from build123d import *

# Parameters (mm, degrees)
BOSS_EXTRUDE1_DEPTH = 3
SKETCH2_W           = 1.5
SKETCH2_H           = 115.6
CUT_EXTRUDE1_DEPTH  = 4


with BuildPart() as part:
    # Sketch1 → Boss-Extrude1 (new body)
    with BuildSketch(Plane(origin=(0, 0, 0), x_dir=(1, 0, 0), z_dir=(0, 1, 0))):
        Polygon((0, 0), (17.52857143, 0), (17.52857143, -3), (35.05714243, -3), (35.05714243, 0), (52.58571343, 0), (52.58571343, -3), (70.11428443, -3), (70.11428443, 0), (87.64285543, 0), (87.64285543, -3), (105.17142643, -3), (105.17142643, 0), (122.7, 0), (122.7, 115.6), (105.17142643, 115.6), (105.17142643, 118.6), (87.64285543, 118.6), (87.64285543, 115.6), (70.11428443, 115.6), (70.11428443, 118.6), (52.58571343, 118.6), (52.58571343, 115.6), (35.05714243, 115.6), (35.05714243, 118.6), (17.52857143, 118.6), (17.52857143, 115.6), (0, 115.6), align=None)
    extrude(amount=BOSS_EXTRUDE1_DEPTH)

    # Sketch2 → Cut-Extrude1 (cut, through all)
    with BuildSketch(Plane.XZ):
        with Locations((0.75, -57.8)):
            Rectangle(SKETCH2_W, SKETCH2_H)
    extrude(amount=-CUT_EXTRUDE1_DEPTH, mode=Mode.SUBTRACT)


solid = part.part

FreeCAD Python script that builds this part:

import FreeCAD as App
import Part
import Sketcher
from FreeCAD import Vector

doc = App.newDocument("Part")
body = doc.addObject("PartDesign::Body", "Body")

# Sketch on XZ plane
sketch1 = doc.addObject("Sketcher::SketchObject", "Sketch")
body.addObject(sketch1)
sketch1.AttachmentSupport = (doc.XZ_Plane, [""])
sketch1.MapMode = "FlatFace"
sketch1.addGeometry(Part.LineSegment(Vector(0, 0, 0), Vector(17.5, 0, 0)), False)
sketch1.addGeometry(Part.LineSegment(Vector(17.5, 0, 0), Vector(17.5, 3, 0)), False)
sketch1.addGeometry(Part.LineSegment(Vector(17.5, 3, 0), Vector(35.1, 3, 0)), False)
sketch1.addGeometry(Part.LineSegment(Vector(35.1, 3, 0), Vector(35.1, 0, 0)), False)
sketch1.addGeometry(Part.LineSegment(Vector(35.1, 0, 0), Vector(52.6, 0, 0)), False)
sketch1.addGeometry(Part.LineSegment(Vector(52.6, 0, 0), Vector(52.6, 3, 0)), False)
sketch1.addGeometry(Part.LineSegment(Vector(52.6, 3, 0), Vector(70.1, 3, 0)), False)
sketch1.addGeometry(Part.LineSegment(Vector(70.1, 3, 0), Vector(70.1, 0, 0)), False)
sketch1.addGeometry(Part.LineSegment(Vector(70.1, 0, 0), Vector(87.6, 0, 0)), False)
sketch1.addGeometry(Part.LineSegment(Vector(87.6, 0, 0), Vector(87.6, 3, 0)), False)
sketch1.addGeometry(Part.LineSegment(Vector(87.6, 3, 0), Vector(105.2, 3, 0)), False)
sketch1.addGeometry(Part.LineSegment(Vector(105.2, 3, 0), Vector(105.2, 0, 0)), False)
sketch1.addGeometry(Part.LineSegment(Vector(105.2, 0, 0), Vector(122.7, 0, 0)), False)
sketch1.addGeometry(Part.LineSegment(Vector(122.7, 0, 0), Vector(122.7, -115.6, 0)), False)
sketch1.addGeometry(Part.LineSegment(Vector(122.7, -115.6, 0), Vector(105.2, -115.6, 0)), False)
sketch1.addGeometry(Part.LineSegment(Vector(105.2, -115.6, 0), Vector(105.2, -118.6, 0)), False)
sketch1.addGeometry(Part.LineSegment(Vector(105.2, -118.6, 0), Vector(87.6, -118.6, 0)), False)
sketch1.addGeometry(Part.LineSegment(Vector(87.6, -118.6, 0), Vector(87.6, -115.6, 0)), False)
sketch1.addGeometry(Part.LineSegment(Vector(87.6, -115.6, 0), Vector(70.1, -115.6, 0)), False)
sketch1.addGeometry(Part.LineSegment(Vector(70.1, -115.6, 0), Vector(70.1, -118.6, 0)), False)
sketch1.addGeometry(Part.LineSegment(Vector(70.1, -118.6, 0), Vector(52.6, -118.6, 0)), False)
sketch1.addGeometry(Part.LineSegment(Vector(52.6, -118.6, 0), Vector(52.6, -115.6, 0)), False)
sketch1.addGeometry(Part.LineSegment(Vector(52.6, -115.6, 0), Vector(35.1, -115.6, 0)), False)
sketch1.addGeometry(Part.LineSegment(Vector(35.1, -115.6, 0), Vector(35.1, -118.6, 0)), False)
sketch1.addGeometry(Part.LineSegment(Vector(35.1, -118.6, 0), Vector(17.5, -118.6, 0)), False)
sketch1.addGeometry(Part.LineSegment(Vector(17.5, -118.6, 0), Vector(17.5, -115.6, 0)), False)
sketch1.addGeometry(Part.LineSegment(Vector(17.5, -115.6, 0), Vector(0, -115.6, 0)), False)
sketch1.addGeometry(Part.LineSegment(Vector(0, -115.6, 0), Vector(0, 0, 0)), False)
sketch1.addConstraint(Sketcher.Constraint("Coincident", 0, 2, 1, 1))
sketch1.addConstraint(Sketcher.Constraint("Coincident", 1, 2, 2, 1))
sketch1.addConstraint(Sketcher.Constraint("Coincident", 2, 2, 3, 1))
sketch1.addConstraint(Sketcher.Constraint("Coincident", 3, 2, 4, 1))
sketch1.addConstraint(Sketcher.Constraint("Coincident", 4, 2, 5, 1))
sketch1.addConstraint(Sketcher.Constraint("Coincident", 5, 2, 6, 1))
sketch1.addConstraint(Sketcher.Constraint("Coincident", 6, 2, 7, 1))
sketch1.addConstraint(Sketcher.Constraint("Coincident", 7, 2, 8, 1))
sketch1.addConstraint(Sketcher.Constraint("Coincident", 8, 2, 9, 1))
sketch1.addConstraint(Sketcher.Constraint("Coincident", 9, 2, 10, 1))
sketch1.addConstraint(Sketcher.Constraint("Coincident", 10, 2, 11, 1))
sketch1.addConstraint(Sketcher.Constraint("Coincident", 11, 2, 12, 1))
sketch1.addConstraint(Sketcher.Constraint("Coincident", 12, 2, 13, 1))
sketch1.addConstraint(Sketcher.Constraint("Coincident", 13, 2, 14, 1))
sketch1.addConstraint(Sketcher.Constraint("Coincident", 14, 2, 15, 1))
sketch1.addConstraint(Sketcher.Constraint("Coincident", 15, 2, 16, 1))
sketch1.addConstraint(Sketcher.Constraint("Coincident", 16, 2, 17, 1))
sketch1.addConstraint(Sketcher.Constraint("Coincident", 17, 2, 18, 1))
sketch1.addConstraint(Sketcher.Constraint("Coincident", 18, 2, 19, 1))
sketch1.addConstraint(Sketcher.Constraint("Coincident", 19, 2, 20, 1))
sketch1.addConstraint(Sketcher.Constraint("Coincident", 20, 2, 21, 1))
sketch1.addConstraint(Sketcher.Constraint("Coincident", 21, 2, 22, 1))
sketch1.addConstraint(Sketcher.Constraint("Coincident", 22, 2, 23, 1))
sketch1.addConstraint(Sketcher.Constraint("Coincident", 23, 2, 24, 1))
sketch1.addConstraint(Sketcher.Constraint("Coincident", 24, 2, 25, 1))
sketch1.addConstraint(Sketcher.Constraint("Coincident", 25, 2, 26, 1))
sketch1.addConstraint(Sketcher.Constraint("Coincident", 26, 2, 27, 1))
sketch1.addConstraint(Sketcher.Constraint("Coincident", 27, 2, 0, 1))
sketch1.addConstraint(Sketcher.Constraint("Horizontal", 0))
sketch1.addConstraint(Sketcher.Constraint("Vertical", 1))
sketch1.addConstraint(Sketcher.Constraint("Horizontal", 2))
sketch1.addConstraint(Sketcher.Constraint("Vertical", 3))
sketch1.addConstraint(Sketcher.Constraint("Horizontal", 4))
sketch1.addConstraint(Sketcher.Constraint("Vertical", 5))
sketch1.addConstraint(Sketcher.Constraint("Horizontal", 6))
sketch1.addConstraint(Sketcher.Constraint("Vertical", 7))
sketch1.addConstraint(Sketcher.Constraint("Horizontal", 8))
sketch1.addConstraint(Sketcher.Constraint("Vertical", 9))
sketch1.addConstraint(Sketcher.Constraint("Horizontal", 10))
sketch1.addConstraint(Sketcher.Constraint("Vertical", 11))
sketch1.addConstraint(Sketcher.Constraint("Horizontal", 12))
sketch1.addConstraint(Sketcher.Constraint("Vertical", 13))
sketch1.addConstraint(Sketcher.Constraint("Horizontal", 14))
sketch1.addConstraint(Sketcher.Constraint("Vertical", 15))
sketch1.addConstraint(Sketcher.Constraint("Horizontal", 16))
sketch1.addConstraint(Sketcher.Constraint("Vertical", 17))
sketch1.addConstraint(Sketcher.Constraint("Horizontal", 18))
sketch1.addConstraint(Sketcher.Constraint("Vertical", 19))
sketch1.addConstraint(Sketcher.Constraint("Horizontal", 20))
sketch1.addConstraint(Sketcher.Constraint("Vertical", 21))
sketch1.addConstraint(Sketcher.Constraint("Horizontal", 22))
sketch1.addConstraint(Sketcher.Constraint("Vertical", 23))
sketch1.addConstraint(Sketcher.Constraint("Horizontal", 24))
sketch1.addConstraint(Sketcher.Constraint("Vertical", 25))
sketch1.addConstraint(Sketcher.Constraint("Horizontal", 26))
sketch1.addConstraint(Sketcher.Constraint("Vertical", 27))
sketch1.addConstraint(Sketcher.Constraint("Coincident", 27, 2, -1, 1))
sketch1.addConstraint(Sketcher.Constraint("PointOnObject", 3, 2, -1))
sketch1.addConstraint(Sketcher.Constraint("PointOnObject", 7, 2, -1))
sketch1.addConstraint(Sketcher.Constraint("PointOnObject", 11, 2, -1))
sketch1.addConstraint(Sketcher.Constraint("Horizontal", 2, 2, 5, 2))
sketch1.addConstraint(Sketcher.Constraint("Horizontal", 6, 2, 9, 2))
sketch1.addConstraint(Sketcher.Constraint("Horizontal", 14, 2, 17, 2))
sketch1.addConstraint(Sketcher.Constraint("Horizontal", 16, 2, 19, 2))
sketch1.addConstraint(Sketcher.Constraint("Horizontal", 18, 2, 21, 2))
sketch1.addConstraint(Sketcher.Constraint("Horizontal", 20, 2, 23, 2))
sketch1.addConstraint(Sketcher.Constraint("Horizontal", 22, 2, 25, 2))
sketch1.addConstraint(Sketcher.Constraint("Vertical", 11, 2, 14, 2))
sketch1.addConstraint(Sketcher.Constraint("Vertical", 9, 2, 16, 2))
sketch1.addConstraint(Sketcher.Constraint("Vertical", 7, 2, 18, 2))
sketch1.addConstraint(Sketcher.Constraint("Vertical", 5, 2, 20, 2))
sketch1.addConstraint(Sketcher.Constraint("Vertical", 3, 2, 22, 2))
sketch1.addConstraint(Sketcher.Constraint("Vertical", 1, 2, 24, 2))
sketch1.addConstraint(Sketcher.Constraint("Equal", 0, 2))
sketch1.addConstraint(Sketcher.Constraint("Equal", 2, 4))
sketch1.addConstraint(Sketcher.Constraint("Equal", 4, 6))
sketch1.addConstraint(Sketcher.Constraint("Equal", 6, 8))
sketch1.addConstraint(Sketcher.Constraint("Equal", 8, 10))
sketch1.addConstraint(Sketcher.Constraint("Equal", 11, 15))
sketch1.addConstraint(Sketcher.Constraint("DistanceY", 1, 1, 1, 2, 3.0))
sketch1.addConstraint(Sketcher.Constraint("DistanceY", 13, 2, 13, 1, 115.6))
sketch1.addConstraint(Sketcher.Constraint("DistanceX", -1, 1, 12, 2, 122.7))
sketch1.addConstraint(Sketcher.Constraint("DistanceX", 0, 1, 0, 2, 17.528571))
pad1 = doc.addObject("PartDesign::Pad", "Pad")
body.addObject(pad1)
pad1.Profile = sketch1
pad1.Length = 3
pad1.Reversed = True

# Sketch on XZ plane
sketch2 = doc.addObject("Sketcher::SketchObject", "Sketch001")
body.addObject(sketch2)
sketch2.AttachmentSupport = (doc.XZ_Plane, [""])
sketch2.MapMode = "FlatFace"
sketch2.addGeometry(Part.LineSegment(Vector(0, 0, 0), Vector(0, -115.6, 0)), False)
sketch2.addGeometry(Part.LineSegment(Vector(0, -115.6, 0), Vector(1.5, -115.6, 0)), False)
sketch2.addGeometry(Part.LineSegment(Vector(1.5, -115.6, 0), Vector(1.5, 0, 0)), False)
sketch2.addGeometry(Part.LineSegment(Vector(1.5, 0, 0), Vector(0, 0, 0)), False)
sketch2.addConstraint(Sketcher.Constraint("Coincident", 0, 2, 1, 1))
sketch2.addConstraint(Sketcher.Constraint("Coincident", 1, 2, 2, 1))
sketch2.addConstraint(Sketcher.Constraint("Coincident", 2, 2, 3, 1))
sketch2.addConstraint(Sketcher.Constraint("Coincident", 3, 2, 0, 1))
sketch2.addConstraint(Sketcher.Constraint("Vertical", 0))
sketch2.addConstraint(Sketcher.Constraint("Horizontal", 1))
sketch2.addConstraint(Sketcher.Constraint("Vertical", 2))
sketch2.addConstraint(Sketcher.Constraint("Horizontal", 3))
sketch2.addConstraint(Sketcher.Constraint("Coincident", 3, 2, -1, 1))
sketch2.addConstraint(Sketcher.Constraint("DistanceX", 1, 1, 1, 2, 1.5))
sketch2.addConstraint(Sketcher.Constraint("DistanceY", 0, 2, 0, 1, 115.6))
pocket1 = doc.addObject("PartDesign::Pocket", "Pocket")
body.addObject(pocket1)
pocket1.Profile = sketch2
pocket1.Type = "ThroughAll"

doc.recompute()
